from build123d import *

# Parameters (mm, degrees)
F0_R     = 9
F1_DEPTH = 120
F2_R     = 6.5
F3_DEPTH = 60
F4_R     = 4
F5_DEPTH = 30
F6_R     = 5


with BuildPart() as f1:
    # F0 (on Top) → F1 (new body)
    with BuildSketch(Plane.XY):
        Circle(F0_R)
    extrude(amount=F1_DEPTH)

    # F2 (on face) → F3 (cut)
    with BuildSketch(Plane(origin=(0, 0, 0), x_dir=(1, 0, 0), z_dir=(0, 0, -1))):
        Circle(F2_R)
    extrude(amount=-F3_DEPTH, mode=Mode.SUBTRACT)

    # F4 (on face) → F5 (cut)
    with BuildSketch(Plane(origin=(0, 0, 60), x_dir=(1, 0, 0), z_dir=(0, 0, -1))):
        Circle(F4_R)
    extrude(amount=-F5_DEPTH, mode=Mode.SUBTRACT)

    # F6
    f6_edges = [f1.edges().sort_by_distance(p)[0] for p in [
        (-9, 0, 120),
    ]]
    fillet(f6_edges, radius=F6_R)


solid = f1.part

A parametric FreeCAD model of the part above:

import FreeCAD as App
import Part
import Sketcher
from FreeCAD import Vector


def edges_at(feature, points):
    """Names of the edges that pass closest to the given points."""
    edges = feature.Shape.Edges
    near = lambda p: min(range(len(edges)), key=lambda i: edges[i].distToShape(Part.Vertex(*p))[0])
    return sorted({f"Edge{near(p) + 1}" for p in points})

doc = App.newDocument("Part")
body = doc.addObject("PartDesign::Body", "Body")

# Sketch on XY plane
sketch1 = body.newObject("Sketcher::SketchObject", "Sketch")
sketch1.AttachmentSupport = (doc.getObject("XY_Plane"), [""])
sketch1.MapMode = "FlatFace"
sketch1.addGeometry(Part.Circle(Vector(0, 0, 0), Vector(0, 0, 1), 9), False)
sketch1.addConstraint([
    Sketcher.Constraint("Coincident", 0, 3, -1, 1),
    Sketcher.Constraint("Diameter", 0, 18.0),
])
pad1 = body.newObject("PartDesign::Pad", "Pad")
pad1.Profile = sketch1
pad1.Length = 120

# Sketch on XY plane
sketch2 = body.newObject("Sketcher::SketchObject", "Sketch001")
sketch2.AttachmentSupport = (doc.getObject("XY_Plane"), [""])
sketch2.MapMode = "FlatFace"
sketch2.addGeometry(Part.Circle(Vector(0, 0, 0), Vector(0, 0, 1), 6), False)
sketch2.addConstraint([
    Sketcher.Constraint("Coincident", 0, 3, -1, 1),
    Sketcher.Constraint("Diameter", 0, 13.0),
])
pocket1 = body.newObject("PartDesign::Pocket", "Pocket")
pocket1.Profile = sketch2
pocket1.Length = 60
pocket1.Reversed = True

# Sketch on XY plane
sketch3 = body.newObject("Sketcher::SketchObject", "Sketch002")
sketch3.AttachmentSupport = (doc.getObject("XY_Plane"), [""])
sketch3.MapMode = "FlatFace"
sketch3.AttachmentOffset = App.Placement(Vector(0, 0, 60), App.Rotation())
sketch3.addGeometry(Part.Circle(Vector(0, 0, 0), Vector(0, 0, 1), 4), False)
sketch3.addConstraint([
    Sketcher.Constraint("Coincident", 0, 3, -1, 1),
    Sketcher.Constraint("Diameter", 0, 8.0),
])
pocket2 = body.newObject("PartDesign::Pocket", "Pocket001")
pocket2.Profile = sketch3
pocket2.Length = 30
pocket2.Reversed = True
doc.recompute()

fillet = body.newObject("PartDesign::Fillet", "Fillet")
fillet.Base = (pocket2, edges_at(pocket2, [(-9, 0, 120)]))
fillet.Radius = 5

doc.recompute()
